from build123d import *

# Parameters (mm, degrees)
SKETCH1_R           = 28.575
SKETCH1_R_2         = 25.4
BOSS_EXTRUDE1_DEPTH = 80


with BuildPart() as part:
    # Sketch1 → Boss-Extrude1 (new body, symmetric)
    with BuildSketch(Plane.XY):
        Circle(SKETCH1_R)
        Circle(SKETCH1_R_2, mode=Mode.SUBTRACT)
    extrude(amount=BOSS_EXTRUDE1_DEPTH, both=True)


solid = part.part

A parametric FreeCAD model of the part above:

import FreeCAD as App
import Part
import Sketcher

V = App.Vector
Q = App.Units.Quantity

doc = App.newDocument("Part")
body = doc.addObject("PartDesign::Body", "Body")

sketch1 = body.newObject("Sketcher::SketchObject", "Sketch")
sketch1.AttachmentSupport = (doc.getObject("XY_Plane"), [""])
sketch1.MapMode = "FlatFace"
sketch1.addGeometry([
    Part.Circle(V(0, 0, 0), V(0, 0, 1), 29),
    Part.Circle(V(0, 0, 0), V(0, 0, 1), 25),
], False)
sketch1.addConstraint([
    Sketcher.Constraint("Coincident", 0, 3, -1, 1),
    Sketcher.Constraint("Coincident", 1, 3, -1, 1),
    Sketcher.Constraint("Diameter", 1, Q("2 in")),
    Sketcher.Constraint("Diameter", 0, Q("2.25 in")),
])
pad1 = body.newObject("PartDesign::Pad", "Pad")
pad1.Profile = sketch1
pad1.Length = 160
pad1.Midplane = True

doc.recompute()
